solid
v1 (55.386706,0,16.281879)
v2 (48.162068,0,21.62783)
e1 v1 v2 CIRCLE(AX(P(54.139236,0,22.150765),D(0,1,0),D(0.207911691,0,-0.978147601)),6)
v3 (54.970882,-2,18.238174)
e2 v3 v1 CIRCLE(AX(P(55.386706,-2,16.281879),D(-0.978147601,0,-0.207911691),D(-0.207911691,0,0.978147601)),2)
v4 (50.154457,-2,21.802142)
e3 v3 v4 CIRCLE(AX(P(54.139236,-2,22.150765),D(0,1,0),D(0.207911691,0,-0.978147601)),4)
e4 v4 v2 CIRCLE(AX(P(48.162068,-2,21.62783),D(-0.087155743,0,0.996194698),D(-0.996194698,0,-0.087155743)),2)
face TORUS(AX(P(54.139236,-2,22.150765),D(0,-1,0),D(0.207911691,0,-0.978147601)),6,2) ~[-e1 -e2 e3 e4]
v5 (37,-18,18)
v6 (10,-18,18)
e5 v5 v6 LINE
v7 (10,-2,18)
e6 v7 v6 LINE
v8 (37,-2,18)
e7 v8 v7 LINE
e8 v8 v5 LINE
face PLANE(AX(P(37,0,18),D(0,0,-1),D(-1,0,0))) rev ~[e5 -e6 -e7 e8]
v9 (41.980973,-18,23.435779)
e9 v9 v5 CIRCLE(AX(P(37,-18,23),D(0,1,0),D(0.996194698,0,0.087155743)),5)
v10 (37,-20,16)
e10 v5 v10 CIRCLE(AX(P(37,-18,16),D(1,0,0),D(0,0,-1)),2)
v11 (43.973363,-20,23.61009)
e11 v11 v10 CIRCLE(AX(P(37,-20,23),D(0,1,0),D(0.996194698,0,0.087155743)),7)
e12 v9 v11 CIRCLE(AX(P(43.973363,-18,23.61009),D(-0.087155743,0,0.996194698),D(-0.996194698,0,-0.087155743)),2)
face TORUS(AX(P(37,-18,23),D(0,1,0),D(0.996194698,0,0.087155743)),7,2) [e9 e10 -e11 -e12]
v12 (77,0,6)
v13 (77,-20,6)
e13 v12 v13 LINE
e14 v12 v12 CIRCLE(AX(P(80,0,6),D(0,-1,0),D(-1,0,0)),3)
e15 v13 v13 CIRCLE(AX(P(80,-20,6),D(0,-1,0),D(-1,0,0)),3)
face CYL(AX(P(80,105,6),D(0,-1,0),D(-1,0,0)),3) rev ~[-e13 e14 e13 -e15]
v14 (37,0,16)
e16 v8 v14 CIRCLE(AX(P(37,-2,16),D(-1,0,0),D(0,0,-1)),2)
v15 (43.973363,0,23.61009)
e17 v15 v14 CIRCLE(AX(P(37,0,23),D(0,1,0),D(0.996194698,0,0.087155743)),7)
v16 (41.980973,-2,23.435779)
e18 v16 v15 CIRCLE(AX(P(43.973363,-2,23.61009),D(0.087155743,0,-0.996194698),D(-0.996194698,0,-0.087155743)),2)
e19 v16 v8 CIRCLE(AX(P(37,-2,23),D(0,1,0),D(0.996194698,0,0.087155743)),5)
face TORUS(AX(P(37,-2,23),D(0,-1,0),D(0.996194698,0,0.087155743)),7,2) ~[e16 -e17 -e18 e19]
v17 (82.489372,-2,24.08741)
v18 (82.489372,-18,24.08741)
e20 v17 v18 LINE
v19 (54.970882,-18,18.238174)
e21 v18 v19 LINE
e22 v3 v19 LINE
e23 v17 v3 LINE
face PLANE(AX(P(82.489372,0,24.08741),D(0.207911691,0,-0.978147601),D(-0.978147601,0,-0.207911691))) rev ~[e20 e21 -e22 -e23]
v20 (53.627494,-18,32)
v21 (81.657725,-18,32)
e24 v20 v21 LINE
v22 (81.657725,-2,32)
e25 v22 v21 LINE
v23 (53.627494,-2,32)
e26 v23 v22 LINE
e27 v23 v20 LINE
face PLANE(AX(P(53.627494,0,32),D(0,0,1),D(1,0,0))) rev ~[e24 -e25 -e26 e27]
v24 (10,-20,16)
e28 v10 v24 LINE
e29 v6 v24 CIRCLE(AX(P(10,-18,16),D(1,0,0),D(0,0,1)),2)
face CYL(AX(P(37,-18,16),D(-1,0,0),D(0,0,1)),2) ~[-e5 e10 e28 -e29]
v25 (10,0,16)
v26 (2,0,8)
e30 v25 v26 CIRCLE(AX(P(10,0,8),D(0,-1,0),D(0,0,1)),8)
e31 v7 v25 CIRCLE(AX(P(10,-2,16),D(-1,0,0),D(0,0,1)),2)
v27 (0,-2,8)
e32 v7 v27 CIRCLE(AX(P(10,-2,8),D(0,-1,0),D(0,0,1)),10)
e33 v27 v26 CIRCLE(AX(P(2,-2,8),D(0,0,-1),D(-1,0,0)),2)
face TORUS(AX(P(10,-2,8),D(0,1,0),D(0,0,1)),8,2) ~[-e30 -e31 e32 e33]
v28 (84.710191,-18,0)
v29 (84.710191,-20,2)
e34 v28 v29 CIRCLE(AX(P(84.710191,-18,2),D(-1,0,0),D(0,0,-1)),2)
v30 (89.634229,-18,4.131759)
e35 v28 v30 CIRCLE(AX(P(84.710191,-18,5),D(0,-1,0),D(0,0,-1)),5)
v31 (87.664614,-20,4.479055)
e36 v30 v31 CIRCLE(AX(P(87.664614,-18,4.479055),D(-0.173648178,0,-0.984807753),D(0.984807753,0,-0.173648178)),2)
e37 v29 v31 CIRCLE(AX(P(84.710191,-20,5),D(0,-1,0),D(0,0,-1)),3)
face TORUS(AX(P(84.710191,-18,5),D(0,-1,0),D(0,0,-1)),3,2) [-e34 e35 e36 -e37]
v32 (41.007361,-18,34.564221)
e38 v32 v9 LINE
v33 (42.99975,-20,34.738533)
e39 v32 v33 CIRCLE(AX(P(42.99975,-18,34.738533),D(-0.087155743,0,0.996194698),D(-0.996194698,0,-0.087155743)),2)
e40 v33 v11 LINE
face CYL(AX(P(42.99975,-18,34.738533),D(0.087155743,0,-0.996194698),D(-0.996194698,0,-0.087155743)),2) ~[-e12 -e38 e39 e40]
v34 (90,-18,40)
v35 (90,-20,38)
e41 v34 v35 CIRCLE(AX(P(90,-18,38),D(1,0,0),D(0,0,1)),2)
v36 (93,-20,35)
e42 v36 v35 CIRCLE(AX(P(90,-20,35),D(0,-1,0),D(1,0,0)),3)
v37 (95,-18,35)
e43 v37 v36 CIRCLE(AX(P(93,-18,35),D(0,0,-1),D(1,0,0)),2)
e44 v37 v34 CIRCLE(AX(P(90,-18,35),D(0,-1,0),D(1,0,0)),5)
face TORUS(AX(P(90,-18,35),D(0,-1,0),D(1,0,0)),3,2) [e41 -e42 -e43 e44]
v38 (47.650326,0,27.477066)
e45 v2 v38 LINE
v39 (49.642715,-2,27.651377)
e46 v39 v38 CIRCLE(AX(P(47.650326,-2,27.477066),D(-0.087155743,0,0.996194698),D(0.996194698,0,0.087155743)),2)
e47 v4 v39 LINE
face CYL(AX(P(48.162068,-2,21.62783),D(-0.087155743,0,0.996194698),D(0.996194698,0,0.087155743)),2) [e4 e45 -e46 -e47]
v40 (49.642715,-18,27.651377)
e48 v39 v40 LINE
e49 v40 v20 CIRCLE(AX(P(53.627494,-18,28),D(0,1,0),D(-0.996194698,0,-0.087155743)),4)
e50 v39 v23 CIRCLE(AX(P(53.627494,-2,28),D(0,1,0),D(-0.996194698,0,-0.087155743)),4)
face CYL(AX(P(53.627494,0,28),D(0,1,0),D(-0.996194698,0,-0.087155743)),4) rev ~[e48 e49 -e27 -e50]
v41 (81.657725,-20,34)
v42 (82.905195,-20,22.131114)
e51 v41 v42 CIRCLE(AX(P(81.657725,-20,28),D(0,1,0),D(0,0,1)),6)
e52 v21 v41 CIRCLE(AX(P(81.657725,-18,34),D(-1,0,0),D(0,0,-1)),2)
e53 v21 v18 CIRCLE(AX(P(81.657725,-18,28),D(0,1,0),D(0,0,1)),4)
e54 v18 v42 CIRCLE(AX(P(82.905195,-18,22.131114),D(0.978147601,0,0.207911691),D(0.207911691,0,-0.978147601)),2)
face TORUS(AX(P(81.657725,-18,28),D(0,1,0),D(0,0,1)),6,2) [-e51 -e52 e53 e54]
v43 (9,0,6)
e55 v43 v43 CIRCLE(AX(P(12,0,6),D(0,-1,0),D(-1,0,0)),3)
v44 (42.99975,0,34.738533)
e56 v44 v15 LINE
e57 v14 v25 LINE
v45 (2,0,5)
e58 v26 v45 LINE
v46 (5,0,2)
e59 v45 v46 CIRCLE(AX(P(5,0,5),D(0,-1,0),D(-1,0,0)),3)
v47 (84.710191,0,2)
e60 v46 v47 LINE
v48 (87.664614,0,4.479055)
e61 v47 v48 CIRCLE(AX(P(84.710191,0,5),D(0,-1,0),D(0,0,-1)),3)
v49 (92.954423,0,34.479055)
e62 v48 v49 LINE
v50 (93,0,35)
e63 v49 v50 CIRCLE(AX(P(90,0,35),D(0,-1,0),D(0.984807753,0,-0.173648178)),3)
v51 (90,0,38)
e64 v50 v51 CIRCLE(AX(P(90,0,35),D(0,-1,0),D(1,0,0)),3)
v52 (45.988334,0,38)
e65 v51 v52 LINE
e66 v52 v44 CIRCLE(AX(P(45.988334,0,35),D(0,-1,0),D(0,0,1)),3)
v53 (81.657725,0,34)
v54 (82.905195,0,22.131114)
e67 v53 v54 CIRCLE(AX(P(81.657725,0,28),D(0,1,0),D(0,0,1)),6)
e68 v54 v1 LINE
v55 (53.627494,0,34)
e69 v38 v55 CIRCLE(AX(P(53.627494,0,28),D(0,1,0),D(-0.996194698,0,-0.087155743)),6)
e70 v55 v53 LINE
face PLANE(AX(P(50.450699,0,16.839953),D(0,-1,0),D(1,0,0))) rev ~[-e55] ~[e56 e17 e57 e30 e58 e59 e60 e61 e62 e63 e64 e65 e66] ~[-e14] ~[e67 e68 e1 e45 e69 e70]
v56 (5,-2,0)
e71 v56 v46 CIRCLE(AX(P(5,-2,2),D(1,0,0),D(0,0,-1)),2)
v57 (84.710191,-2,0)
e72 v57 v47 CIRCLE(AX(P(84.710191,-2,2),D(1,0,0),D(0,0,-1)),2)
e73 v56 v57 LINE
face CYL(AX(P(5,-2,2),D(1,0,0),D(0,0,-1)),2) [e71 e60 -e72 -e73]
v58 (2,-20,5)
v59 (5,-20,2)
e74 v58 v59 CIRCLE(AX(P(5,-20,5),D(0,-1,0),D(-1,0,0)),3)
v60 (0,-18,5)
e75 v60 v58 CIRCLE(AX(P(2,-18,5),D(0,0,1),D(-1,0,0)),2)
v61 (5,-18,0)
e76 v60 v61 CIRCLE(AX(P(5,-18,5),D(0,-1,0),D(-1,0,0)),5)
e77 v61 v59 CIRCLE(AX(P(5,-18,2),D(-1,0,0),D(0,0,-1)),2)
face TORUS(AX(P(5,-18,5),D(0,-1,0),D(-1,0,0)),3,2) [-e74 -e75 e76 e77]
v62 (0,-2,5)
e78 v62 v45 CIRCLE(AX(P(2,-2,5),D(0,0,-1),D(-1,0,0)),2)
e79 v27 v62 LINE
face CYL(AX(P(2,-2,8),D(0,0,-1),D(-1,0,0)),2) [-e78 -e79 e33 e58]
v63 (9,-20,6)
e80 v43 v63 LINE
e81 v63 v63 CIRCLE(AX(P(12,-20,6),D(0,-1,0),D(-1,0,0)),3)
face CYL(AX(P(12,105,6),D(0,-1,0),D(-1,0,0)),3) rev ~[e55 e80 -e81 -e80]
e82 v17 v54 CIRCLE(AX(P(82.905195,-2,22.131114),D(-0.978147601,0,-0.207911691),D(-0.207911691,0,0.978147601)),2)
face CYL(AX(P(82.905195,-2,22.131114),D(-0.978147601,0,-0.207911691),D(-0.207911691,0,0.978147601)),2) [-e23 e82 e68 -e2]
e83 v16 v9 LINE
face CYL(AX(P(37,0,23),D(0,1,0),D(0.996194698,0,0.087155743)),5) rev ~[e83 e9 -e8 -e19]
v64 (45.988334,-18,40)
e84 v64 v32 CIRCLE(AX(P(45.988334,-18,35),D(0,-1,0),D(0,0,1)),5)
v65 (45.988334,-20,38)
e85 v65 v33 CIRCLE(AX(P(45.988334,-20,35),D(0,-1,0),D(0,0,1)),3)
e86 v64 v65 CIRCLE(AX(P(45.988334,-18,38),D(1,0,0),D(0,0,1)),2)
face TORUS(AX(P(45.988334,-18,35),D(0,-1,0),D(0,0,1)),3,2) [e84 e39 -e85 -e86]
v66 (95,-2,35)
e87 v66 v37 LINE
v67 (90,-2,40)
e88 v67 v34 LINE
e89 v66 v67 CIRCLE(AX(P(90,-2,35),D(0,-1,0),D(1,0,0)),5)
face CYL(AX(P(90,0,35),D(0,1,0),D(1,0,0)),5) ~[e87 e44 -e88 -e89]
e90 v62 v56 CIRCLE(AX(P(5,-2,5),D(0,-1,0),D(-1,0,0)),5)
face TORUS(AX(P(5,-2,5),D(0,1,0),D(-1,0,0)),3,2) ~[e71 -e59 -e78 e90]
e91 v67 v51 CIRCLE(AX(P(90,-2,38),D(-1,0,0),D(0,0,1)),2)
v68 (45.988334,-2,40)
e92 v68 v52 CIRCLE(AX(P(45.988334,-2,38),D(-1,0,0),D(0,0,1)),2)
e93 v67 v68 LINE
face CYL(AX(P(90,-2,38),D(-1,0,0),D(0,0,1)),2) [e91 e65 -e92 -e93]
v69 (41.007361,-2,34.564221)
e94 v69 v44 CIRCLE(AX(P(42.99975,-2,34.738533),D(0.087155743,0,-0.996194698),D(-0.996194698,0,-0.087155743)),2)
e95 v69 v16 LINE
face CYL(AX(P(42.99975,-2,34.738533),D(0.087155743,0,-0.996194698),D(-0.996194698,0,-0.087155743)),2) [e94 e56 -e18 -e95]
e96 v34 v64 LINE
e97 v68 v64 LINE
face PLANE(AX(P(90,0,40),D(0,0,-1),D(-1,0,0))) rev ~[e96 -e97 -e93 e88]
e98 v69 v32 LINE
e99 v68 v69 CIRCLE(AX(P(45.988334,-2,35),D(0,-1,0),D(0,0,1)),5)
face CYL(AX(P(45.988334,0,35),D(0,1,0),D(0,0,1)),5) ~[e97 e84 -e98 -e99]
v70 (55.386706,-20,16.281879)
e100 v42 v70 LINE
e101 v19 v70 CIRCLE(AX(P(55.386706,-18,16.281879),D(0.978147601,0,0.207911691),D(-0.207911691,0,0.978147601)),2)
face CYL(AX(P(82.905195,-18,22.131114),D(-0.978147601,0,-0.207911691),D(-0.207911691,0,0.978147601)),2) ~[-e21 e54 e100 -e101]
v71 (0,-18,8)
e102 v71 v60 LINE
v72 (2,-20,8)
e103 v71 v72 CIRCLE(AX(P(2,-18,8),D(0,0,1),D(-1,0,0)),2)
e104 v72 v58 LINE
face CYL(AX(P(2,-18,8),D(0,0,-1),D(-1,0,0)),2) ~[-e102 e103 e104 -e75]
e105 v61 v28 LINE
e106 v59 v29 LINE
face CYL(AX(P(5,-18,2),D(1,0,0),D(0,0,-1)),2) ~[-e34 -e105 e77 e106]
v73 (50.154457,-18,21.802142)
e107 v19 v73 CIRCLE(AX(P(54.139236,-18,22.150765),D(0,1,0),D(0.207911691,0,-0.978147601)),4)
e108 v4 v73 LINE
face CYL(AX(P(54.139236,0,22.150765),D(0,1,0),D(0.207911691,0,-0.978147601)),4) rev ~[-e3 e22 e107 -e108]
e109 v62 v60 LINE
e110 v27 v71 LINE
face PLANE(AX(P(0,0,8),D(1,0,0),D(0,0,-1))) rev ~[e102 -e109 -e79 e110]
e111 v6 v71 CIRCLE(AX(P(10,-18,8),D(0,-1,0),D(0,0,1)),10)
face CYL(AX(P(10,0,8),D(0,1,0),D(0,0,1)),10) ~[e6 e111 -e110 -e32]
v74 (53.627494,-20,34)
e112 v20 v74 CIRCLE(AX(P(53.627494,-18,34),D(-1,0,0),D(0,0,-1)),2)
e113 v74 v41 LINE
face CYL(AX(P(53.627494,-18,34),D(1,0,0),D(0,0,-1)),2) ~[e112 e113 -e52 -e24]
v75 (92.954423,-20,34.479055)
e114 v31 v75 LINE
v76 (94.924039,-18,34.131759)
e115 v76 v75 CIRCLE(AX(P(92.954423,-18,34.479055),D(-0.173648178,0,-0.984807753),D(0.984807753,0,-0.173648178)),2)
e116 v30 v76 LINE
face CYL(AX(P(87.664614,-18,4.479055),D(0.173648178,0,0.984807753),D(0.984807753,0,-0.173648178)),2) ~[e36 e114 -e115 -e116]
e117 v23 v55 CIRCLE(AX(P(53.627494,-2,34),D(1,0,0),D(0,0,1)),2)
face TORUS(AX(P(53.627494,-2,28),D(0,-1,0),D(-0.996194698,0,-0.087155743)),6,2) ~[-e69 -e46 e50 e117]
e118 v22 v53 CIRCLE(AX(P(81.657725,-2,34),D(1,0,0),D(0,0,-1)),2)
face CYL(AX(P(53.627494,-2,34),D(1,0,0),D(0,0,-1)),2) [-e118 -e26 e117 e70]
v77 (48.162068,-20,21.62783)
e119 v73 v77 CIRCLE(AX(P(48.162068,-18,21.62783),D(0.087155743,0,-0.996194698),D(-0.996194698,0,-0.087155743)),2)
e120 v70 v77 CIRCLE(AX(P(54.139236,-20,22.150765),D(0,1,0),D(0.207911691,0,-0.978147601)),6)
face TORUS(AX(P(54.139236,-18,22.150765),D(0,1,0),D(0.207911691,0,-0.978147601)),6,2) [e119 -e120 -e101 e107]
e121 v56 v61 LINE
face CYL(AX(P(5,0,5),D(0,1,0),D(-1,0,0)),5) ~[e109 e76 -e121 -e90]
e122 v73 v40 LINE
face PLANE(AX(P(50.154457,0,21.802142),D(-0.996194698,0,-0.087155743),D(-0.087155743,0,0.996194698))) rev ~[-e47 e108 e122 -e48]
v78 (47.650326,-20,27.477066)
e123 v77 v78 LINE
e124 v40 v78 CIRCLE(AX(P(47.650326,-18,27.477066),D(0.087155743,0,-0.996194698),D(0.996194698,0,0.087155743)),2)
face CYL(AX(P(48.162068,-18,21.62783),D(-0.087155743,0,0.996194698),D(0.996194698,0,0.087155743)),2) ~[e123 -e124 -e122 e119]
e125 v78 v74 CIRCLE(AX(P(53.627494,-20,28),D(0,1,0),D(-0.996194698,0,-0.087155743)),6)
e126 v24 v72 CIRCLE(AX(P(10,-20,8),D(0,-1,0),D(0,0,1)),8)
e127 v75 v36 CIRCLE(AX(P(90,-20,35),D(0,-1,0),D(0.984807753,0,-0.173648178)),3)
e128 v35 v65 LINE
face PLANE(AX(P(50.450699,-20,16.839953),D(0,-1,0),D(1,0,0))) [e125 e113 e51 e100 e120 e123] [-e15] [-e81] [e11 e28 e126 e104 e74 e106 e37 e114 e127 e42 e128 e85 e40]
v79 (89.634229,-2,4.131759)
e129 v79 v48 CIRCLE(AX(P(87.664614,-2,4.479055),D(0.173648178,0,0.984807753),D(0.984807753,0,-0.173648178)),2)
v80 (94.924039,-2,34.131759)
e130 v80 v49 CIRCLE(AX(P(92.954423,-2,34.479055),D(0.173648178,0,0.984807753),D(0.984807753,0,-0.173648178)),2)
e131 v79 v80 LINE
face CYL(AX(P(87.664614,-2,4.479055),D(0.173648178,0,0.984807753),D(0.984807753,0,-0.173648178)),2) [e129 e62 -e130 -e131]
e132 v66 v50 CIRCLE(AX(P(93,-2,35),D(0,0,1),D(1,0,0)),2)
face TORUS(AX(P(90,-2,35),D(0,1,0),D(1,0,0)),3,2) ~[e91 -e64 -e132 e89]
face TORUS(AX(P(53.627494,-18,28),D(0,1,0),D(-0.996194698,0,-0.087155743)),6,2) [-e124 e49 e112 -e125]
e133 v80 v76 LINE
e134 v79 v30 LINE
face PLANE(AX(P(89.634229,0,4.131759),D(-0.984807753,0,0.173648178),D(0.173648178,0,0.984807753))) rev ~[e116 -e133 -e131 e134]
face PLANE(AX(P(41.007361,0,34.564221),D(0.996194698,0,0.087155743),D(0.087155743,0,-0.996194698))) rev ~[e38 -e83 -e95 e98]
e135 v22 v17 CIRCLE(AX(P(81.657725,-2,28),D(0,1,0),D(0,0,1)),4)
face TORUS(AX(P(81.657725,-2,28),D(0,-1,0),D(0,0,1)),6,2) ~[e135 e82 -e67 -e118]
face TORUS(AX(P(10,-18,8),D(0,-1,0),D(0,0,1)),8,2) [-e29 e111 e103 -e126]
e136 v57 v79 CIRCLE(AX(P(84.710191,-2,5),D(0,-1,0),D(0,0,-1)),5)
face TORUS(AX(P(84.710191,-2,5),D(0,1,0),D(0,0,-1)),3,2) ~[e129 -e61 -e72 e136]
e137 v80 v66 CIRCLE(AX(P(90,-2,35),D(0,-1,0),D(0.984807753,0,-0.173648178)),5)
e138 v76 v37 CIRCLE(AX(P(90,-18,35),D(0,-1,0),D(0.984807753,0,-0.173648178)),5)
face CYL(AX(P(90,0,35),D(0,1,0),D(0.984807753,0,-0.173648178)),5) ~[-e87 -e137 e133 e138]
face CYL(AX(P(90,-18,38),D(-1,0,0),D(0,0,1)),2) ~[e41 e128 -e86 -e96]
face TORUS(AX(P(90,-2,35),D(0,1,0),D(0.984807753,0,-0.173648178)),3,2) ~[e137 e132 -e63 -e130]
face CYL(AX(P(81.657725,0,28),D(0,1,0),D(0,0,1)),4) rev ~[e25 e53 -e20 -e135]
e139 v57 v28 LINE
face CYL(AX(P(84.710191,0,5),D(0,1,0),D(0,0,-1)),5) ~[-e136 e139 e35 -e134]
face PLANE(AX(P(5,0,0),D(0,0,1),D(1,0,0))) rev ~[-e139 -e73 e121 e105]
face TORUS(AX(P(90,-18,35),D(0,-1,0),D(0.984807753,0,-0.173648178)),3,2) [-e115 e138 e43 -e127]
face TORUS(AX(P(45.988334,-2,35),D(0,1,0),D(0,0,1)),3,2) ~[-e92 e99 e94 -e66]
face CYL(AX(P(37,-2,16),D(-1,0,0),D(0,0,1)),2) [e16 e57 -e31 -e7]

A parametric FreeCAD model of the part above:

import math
import FreeCAD as App
import Part
import Sketcher

V = App.Vector
Q = App.Units.Quantity


def edges_at(feature, points):
    """Names of the edges that pass closest to the given points."""
    edges = feature.Shape.Edges
    near = lambda p: min(range(len(edges)), key=lambda i: edges[i].distToShape(Part.Vertex(*p))[0])
    return sorted({f"Edge{near(p) + 1}" for p in points})

doc = App.newDocument("Part")
body = doc.addObject("PartDesign::Body", "Body")

# Sketch on XZ plane
sketch1 = body.newObject("Sketcher::SketchObject", "Sketch")
sketch1.AttachmentSupport = (doc.getObject("XZ_Plane"), [""])
sketch1.MapMode = "FlatFace"
sketch1.addGeometry(Part.ArcOfCircle(Part.Circle(V(5, 5, 0), V(0, 0, 1), 5), math.radians(180), math.radians(270)), False)
sketch1.addGeometry(Part.LineSegment(V(5, 0, 0), V(84.7, 0, 0)), False)
sketch1.addGeometry(Part.ArcOfCircle(Part.Circle(V(84.7, 5, 0), V(0, 0, 1), 5), math.radians(-90), math.radians(-10)), False)
sketch1.addGeometry(Part.LineSegment(V(89.6, 4.1, 0), V(94.9, 34.1, 0)), False)
sketch1.addGeometry(Part.ArcOfCircle(Part.Circle(V(90, 35, 0), V(0, 0, 1), 5), math.radians(-10), math.radians(0)), False)
sketch1.addGeometry(Part.ArcOfCircle(Part.Circle(V(90, 35, 0), V(0, 0, 1), 5), math.radians(0), math.radians(90)), False)
sketch1.addGeometry(Part.LineSegment(V(90, 40, 0), V(46, 40, 0)), False)
sketch1.addGeometry(Part.ArcOfCircle(Part.Circle(V(46, 35, 0), V(0, 0, 1), 5), math.radians(90), math.radians(185)), False)
sketch1.addGeometry(Part.LineSegment(V(41, 34.6, 0), V(42, 23.4, 0)), False)
sketch1.addGeometry(Part.ArcOfCircle(Part.Circle(V(37, 23, 0), V(0, 0, 1), 5), math.radians(-90), math.radians(5)), False)
sketch1.addGeometry(Part.LineSegment(V(37, 18, 0), V(10, 18, 0)), False)
sketch1.addGeometry(Part.ArcOfCircle(Part.Circle(V(10, 8, 0), V(0, 0, 1), 10), math.radians(90), math.radians(180)), False)
sketch1.addGeometry(Part.LineSegment(V(0, 8, 0), V(0, 5, 0)), False)
sketch1.addGeometry(Part.LineSegment(V(50.2, 21.8, 0), V(49.6, 27.7, 0)), False)
sketch1.addGeometry(Part.ArcOfCircle(Part.Circle(V(53.6, 28, 0), V(0, 0, 1), 4), math.radians(90), math.radians(185)), False)
sketch1.addGeometry(Part.LineSegment(V(53.6, 32, 0), V(81.7, 32, 0)), False)
sketch1.addGeometry(Part.ArcOfCircle(Part.Circle(V(81.7, 28, 0), V(0, 0, 1), 4), math.radians(-78), math.radians(90)), False)
sketch1.addGeometry(Part.LineSegment(V(82.5, 24.1, 0), V(55, 18.2, 0)), False)
sketch1.addGeometry(Part.ArcOfCircle(Part.Circle(V(54.1, 22.2, 0), V(0, 0, 1), 4), math.radians(-175), math.radians(-78)), False)
sketch1.addConstraint(Sketcher.Constraint("Tangent", 0, 2, 1, 1))
sketch1.addConstraint(Sketcher.Constraint("Tangent", 1, 2, 2, 1))
sketch1.addConstraint(Sketcher.Constraint("Tangent", 2, 2, 3, 1))
sketch1.addConstraint(Sketcher.Constraint("Tangent", 3, 2, 4, 1))
sketch1.addConstraint(Sketcher.Constraint("Tangent", 4, 2, 5, 1))
sketch1.addConstraint(Sketcher.Constraint("Tangent", 5, 2, 6, 1))
sketch1.addConstraint(Sketcher.Constraint("Tangent", 6, 2, 7, 1))
sketch1.addConstraint(Sketcher.Constraint("Tangent", 7, 2, 8, 1))
sketch1.addConstraint(Sketcher.Constraint("Tangent", 8, 2, 9, 2))
sketch1.addConstraint(Sketcher.Constraint("Tangent", 9, 1, 10, 1))
sketch1.addConstraint(Sketcher.Constraint("Tangent", 10, 2, 11, 1))
sketch1.addConstraint(Sketcher.Constraint("Tangent", 11, 2, 12, 1))
sketch1.addConstraint(Sketcher.Constraint("Tangent", 12, 2, 0, 1))
sketch1.addConstraint(Sketcher.Constraint("Tangent", 13, 2, 14, 2))
sketch1.addConstraint(Sketcher.Constraint("Tangent", 14, 1, 15, 1))
sketch1.addConstraint(Sketcher.Constraint("Tangent", 15, 2, 16, 2))
sketch1.addConstraint(Sketcher.Constraint("Tangent", 16, 1, 17, 1))
sketch1.addConstraint(Sketcher.Constraint("Tangent", 17, 2, 18, 2))
sketch1.addConstraint(Sketcher.Constraint("Tangent", 18, 1, 13, 1))
sketch1.addConstraint(Sketcher.Constraint("Horizontal", 1))
sketch1.addConstraint(Sketcher.Constraint("Horizontal", 6))
sketch1.addConstraint(Sketcher.Constraint("Horizontal", 10))
sketch1.addConstraint(Sketcher.Constraint("Vertical", 12))
sketch1.addConstraint(Sketcher.Constraint("Horizontal", 15))
sketch1.addConstraint(Sketcher.Constraint("Equal", 0, 2))
sketch1.addConstraint(Sketcher.Constraint("Equal", 2, 4))
sketch1.addConstraint(Sketcher.Constraint("Equal", 4, 5))
sketch1.addConstraint(Sketcher.Constraint("Equal", 5, 7))
sketch1.addConstraint(Sketcher.Constraint("Equal", 7, 9))
sketch1.addConstraint(Sketcher.Constraint("Equal", 14, 16))
sketch1.addConstraint(Sketcher.Constraint("Equal", 16, 18))
sketch1.addConstraint(Sketcher.Constraint("PointOnObject", 0, 2, -1))
sketch1.addConstraint(Sketcher.Constraint("PointOnObject", 11, 2, -2))
sketch1.addConstraint(Sketcher.Constraint("Parallel", 8, 13))
sketch1.addConstraint(Sketcher.Constraint("Horizontal", 7, 3, 4, 2))
sketch1.addConstraint(Sketcher.Constraint("Radius", 0, 5.0))
sketch1.addConstraint(Sketcher.Constraint("Radius", 11, 10.0))
sketch1.addConstraint(Sketcher.Constraint("Radius", 14, 4.0))
sketch1.addConstraint(Sketcher.Constraint("DistanceX", 10, 2, 10, 1, 27.0))
sketch1.addConstraint(Sketcher.Constraint("DistanceY", 12, 2, 12, 1, 3.0))
sketch1.addConstraint(Sketcher.Constraint("Angle", 3, Q("80 deg")))
sketch1.addConstraint(Sketcher.Constraint("Angle", 8, Q("-85 deg")))
sketch1.addConstraint(Sketcher.Constraint("Angle", 17, Q("-168 deg")))
sketch1.addConstraint(Sketcher.Constraint("DistanceX", -1, 1, 4, 3, 90.0))
sketch1.addConstraint(Sketcher.Constraint("DistanceY", -1, 1, 4, 3, 35.0))
sketch1.addConstraint(Sketcher.Constraint("DistanceY", -1, 1, 14, 3, 28.0))
sketch1.addConstraint(Sketcher.Constraint("DistanceX", 15, 1, 15, 2, 28.030231))
sketch1.addConstraint(Sketcher.Constraint("DistanceX", 7, 3, 18, 3, 8.150901))
pad1 = body.newObject("PartDesign::Pad", "Pad")
pad1.Profile = sketch1
pad1.Length = 20
doc.recompute()

fillet = body.newObject("PartDesign::Fillet", "Fillet")
fillet.Base = (pad1, edges_at(pad1, [
    (67.643, -20, 32),
    (41.494, -20, 29),
    (68.73, 0, 21.163),
    (41.494, 0, 29),
]))
fillet.Radius = 2

# Sketch on XZ plane
sketch2 = body.newObject("Sketcher::SketchObject", "Sketch001")
sketch2.AttachmentSupport = (doc.getObject("XZ_Plane"), [""])
sketch2.MapMode = "FlatFace"
sketch2.addGeometry(Part.Circle(V(12, 6, 0), V(0, 0, 1), 3), False)
sketch2.addGeometry(Part.Circle(V(80, 6, 0), V(0, 0, 1), 3), False)
sketch2.addConstraint(Sketcher.Constraint("Equal", 0, 1))
sketch2.addConstraint(Sketcher.Constraint("Horizontal", 0, 3, 1, 3))
sketch2.addConstraint(Sketcher.Constraint("Diameter", 0, 6.0))
sketch2.addConstraint(Sketcher.Constraint("DistanceX", -1, 1, 0, 3, 12.0))
sketch2.addConstraint(Sketcher.Constraint("DistanceY", -1, 1, 0, 3, 6.0))
sketch2.addConstraint(Sketcher.Constraint("DistanceX", -1, 1, 1, 3, 80.0))
doc.recompute()
hole = body.newObject("PartDesign::Hole", "Hole")
hole.Profile = sketch2
hole.ThreadType = "None"
hole.Diameter = 6
hole.DepthType = "ThroughAll"
hole.Reversed = True

doc.recompute()
